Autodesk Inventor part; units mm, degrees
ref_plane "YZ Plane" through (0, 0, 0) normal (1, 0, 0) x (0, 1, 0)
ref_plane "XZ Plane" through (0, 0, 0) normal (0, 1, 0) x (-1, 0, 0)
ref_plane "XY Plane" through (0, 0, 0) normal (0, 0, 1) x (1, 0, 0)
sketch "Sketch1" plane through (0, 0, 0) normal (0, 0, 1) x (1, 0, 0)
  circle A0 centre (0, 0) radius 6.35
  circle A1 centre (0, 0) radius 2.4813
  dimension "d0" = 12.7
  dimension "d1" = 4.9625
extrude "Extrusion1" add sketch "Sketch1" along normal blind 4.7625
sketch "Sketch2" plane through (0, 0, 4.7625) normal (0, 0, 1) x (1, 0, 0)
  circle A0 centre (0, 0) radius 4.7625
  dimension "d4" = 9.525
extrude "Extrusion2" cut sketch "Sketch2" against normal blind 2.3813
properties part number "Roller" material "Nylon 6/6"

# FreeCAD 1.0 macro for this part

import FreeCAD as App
import Part
import Sketcher
Q = App.Units.Quantity

doc = App.newDocument("Part")
body = doc.addObject("PartDesign::Body", "Body")

# Sketch on XY plane
sketch1 = body.newObject("Sketcher::SketchObject", "Sketch")
sketch1.AttachmentSupport = (doc.getObject("XY_Plane"), [""])
sketch1.MapMode = "FlatFace"
sketch1.addGeometry(Part.Circle(App.Vector(0, 0, 0), App.Vector(0, 0, 1), 6.3), False)
sketch1.addGeometry(Part.Circle(App.Vector(0, 0, 0), App.Vector(0, 0, 1), 2.5), False)
sketch1.addConstraint(Sketcher.Constraint("Coincident", 0, 3, -1, 1))
sketch1.addConstraint(Sketcher.Constraint("Coincident", 1, 3, -1, 1))
sketch1.addConstraint(Sketcher.Constraint("Diameter", 0, Q("0.5 in")))
sketch1.addConstraint(Sketcher.Constraint("Diameter", 1, 4.9626))
pad1 = body.newObject("PartDesign::Pad", "Pad")
pad1.Profile = sketch1
pad1.Length = Q("0.1875 in")

# Sketch on XY plane
sketch2 = body.newObject("Sketcher::SketchObject", "Sketch001")
sketch2.AttachmentSupport = (doc.getObject("XY_Plane"), [""])
sketch2.MapMode = "FlatFace"
sketch2.AttachmentOffset = App.Placement(App.Vector(0, 0, 0.1875 * 25.4), App.Rotation())
sketch2.addGeometry(Part.Circle(App.Vector(0, 0, 0), App.Vector(0, 0, 1), 4.8), False)
sketch2.addConstraint(Sketcher.Constraint("Coincident", 0, 3, -1, 1))
sketch2.addConstraint(Sketcher.Constraint("Diameter", 0, Q("0.375 in")))
pocket1 = body.newObject("PartDesign::Pocket", "Pocket")
pocket1.Profile = sketch2
pocket1.Length = Q("0.093752 in")

doc.recompute()
